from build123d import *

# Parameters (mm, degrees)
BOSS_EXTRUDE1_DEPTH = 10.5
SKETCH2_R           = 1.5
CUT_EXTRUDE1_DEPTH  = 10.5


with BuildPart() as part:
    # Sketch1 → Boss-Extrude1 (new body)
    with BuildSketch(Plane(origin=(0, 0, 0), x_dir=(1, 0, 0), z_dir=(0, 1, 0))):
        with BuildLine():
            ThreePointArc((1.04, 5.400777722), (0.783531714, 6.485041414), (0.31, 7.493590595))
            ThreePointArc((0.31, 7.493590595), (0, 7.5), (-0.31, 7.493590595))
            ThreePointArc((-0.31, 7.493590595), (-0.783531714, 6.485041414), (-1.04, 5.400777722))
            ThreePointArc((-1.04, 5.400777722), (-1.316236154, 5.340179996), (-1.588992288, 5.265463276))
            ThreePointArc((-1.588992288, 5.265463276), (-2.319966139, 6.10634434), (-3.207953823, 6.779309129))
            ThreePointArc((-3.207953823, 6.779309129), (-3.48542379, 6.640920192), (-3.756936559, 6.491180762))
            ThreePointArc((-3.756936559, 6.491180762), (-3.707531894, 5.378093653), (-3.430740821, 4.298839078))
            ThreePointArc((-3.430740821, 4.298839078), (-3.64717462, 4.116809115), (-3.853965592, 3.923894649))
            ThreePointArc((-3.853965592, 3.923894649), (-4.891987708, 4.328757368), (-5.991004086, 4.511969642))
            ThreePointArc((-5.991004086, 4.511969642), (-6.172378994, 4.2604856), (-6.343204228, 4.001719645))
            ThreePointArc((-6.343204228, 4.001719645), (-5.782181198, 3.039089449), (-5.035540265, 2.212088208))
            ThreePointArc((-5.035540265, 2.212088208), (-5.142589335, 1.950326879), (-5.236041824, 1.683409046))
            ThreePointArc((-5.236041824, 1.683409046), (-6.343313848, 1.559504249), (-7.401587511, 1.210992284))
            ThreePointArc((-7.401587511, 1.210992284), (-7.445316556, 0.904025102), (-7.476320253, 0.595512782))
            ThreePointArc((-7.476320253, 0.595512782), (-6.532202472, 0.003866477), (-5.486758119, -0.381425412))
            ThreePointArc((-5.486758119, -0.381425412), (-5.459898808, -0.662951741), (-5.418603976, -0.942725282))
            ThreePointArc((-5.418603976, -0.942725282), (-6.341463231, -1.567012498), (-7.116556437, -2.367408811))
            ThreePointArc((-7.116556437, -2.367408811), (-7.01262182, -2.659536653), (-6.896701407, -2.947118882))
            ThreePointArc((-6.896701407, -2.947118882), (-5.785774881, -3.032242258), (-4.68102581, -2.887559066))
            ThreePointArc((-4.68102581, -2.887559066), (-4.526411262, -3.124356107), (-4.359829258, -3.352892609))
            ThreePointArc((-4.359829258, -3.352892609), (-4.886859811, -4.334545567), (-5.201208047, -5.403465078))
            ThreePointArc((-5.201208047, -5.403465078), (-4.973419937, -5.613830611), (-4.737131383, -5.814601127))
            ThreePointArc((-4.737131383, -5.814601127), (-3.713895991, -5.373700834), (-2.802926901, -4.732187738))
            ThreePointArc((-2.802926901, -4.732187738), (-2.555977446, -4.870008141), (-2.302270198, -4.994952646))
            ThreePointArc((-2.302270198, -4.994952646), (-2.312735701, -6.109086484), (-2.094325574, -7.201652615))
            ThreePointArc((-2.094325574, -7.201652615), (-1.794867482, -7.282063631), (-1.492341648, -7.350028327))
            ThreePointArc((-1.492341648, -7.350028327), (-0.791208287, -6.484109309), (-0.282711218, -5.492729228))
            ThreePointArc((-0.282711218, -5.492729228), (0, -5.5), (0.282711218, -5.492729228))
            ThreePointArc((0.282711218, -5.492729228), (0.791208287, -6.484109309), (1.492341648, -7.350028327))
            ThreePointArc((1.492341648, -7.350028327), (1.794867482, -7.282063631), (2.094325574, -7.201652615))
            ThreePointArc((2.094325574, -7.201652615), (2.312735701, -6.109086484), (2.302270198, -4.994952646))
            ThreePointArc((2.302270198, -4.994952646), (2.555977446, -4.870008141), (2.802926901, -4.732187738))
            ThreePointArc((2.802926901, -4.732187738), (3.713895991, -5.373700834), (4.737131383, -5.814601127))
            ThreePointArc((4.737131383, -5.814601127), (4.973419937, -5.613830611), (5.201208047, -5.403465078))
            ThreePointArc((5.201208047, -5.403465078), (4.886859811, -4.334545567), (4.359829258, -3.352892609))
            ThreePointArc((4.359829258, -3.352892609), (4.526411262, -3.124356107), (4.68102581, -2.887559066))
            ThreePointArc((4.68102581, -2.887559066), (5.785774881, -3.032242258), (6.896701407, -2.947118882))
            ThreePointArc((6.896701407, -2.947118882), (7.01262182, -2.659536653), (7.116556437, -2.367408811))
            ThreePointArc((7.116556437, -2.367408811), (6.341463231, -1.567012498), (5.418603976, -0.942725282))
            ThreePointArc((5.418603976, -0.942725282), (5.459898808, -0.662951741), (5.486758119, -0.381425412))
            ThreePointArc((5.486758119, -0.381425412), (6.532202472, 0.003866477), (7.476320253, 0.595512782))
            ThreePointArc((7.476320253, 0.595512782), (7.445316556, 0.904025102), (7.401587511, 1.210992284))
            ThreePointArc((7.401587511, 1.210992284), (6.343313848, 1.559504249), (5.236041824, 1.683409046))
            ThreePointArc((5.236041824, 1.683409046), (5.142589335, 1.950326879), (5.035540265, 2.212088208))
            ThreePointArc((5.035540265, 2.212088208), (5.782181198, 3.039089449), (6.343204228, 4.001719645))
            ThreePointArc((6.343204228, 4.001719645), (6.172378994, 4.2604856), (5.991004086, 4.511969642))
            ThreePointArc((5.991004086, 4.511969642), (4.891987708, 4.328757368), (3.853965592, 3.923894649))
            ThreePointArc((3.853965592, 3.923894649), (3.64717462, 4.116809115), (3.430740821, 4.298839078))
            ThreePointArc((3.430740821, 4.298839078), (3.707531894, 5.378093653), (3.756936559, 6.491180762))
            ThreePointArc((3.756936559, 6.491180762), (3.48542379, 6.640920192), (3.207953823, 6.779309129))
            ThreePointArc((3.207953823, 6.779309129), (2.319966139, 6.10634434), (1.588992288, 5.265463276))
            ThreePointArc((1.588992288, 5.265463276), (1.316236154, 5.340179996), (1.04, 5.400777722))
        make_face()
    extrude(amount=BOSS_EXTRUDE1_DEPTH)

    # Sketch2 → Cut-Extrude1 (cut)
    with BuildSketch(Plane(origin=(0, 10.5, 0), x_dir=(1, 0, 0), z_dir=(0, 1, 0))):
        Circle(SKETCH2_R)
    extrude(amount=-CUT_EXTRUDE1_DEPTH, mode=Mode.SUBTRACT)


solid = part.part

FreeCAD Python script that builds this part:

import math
import FreeCAD as App
import Part
import Sketcher
Q = App.Units.Quantity

doc = App.newDocument("Part")
body = doc.addObject("PartDesign::Body", "Body")

sketch1 = doc.addObject("Sketcher::SketchObject", "Sketch")
body.addObject(sketch1)
sketch1.AttachmentSupport = (doc.XZ_Plane, [""])
sketch1.MapMode = "FlatFace"
sketch1.addGeometry(Part.ArcOfCircle(Part.Circle(App.Vector(-4.3, -4.7, 0), App.Vector(0, 0, 1), 5.4), math.radians(-31), math.radians(-7)), False)
sketch1.addGeometry(Part.ArcOfCircle(Part.Circle(App.Vector(0, 0, 0), App.Vector(0, 0, 1), 7.5), math.radians(-92.37), math.radians(-87.63)), False)
sketch1.addGeometry(Part.ArcOfCircle(Part.Circle(App.Vector(4.3, -4.7, 0), App.Vector(0, 0, 1), 5.4), math.radians(-173), math.radians(-149)), False)
sketch1.addGeometry(Part.ArcOfCircle(Part.Circle(App.Vector(0, 0, 0), App.Vector(0, 0, 1), 5.5), math.radians(-106.79), math.radians(-100.9)), False)
sketch1.addGeometry(Part.ArcOfCircle(Part.Circle(App.Vector(-6, -2.2, 0), App.Vector(0, 0, 1), 5.4), math.radians(-59), math.radians(-35)), False)
sketch1.addGeometry(Part.ArcOfCircle(Part.Circle(App.Vector(0, 0, 0), App.Vector(0, 0, 1), 7.5), math.radians(-120.06), math.radians(-115.32)), False)
sketch1.addGeometry(Part.ArcOfCircle(Part.Circle(App.Vector(1.6, -6.2, 0), App.Vector(0, 0, 1), 5.4), math.radians(160), math.radians(183)), False)
sketch1.addGeometry(Part.ArcOfCircle(Part.Circle(App.Vector(0, 0, 0), App.Vector(0, 0, 1), 5.5), math.radians(-134.48), math.radians(-128.59)), False)
sketch1.addGeometry(Part.ArcOfCircle(Part.Circle(App.Vector(-6.3, 0.9, 0), App.Vector(0, 0, 1), 5.4), math.radians(-86), math.radians(-63)), False)
sketch1.addGeometry(Part.ArcOfCircle(Part.Circle(App.Vector(0, 0, 0), App.Vector(0, 0, 1), 7.5), math.radians(-147.75), math.radians(-143.02)), False)
sketch1.addGeometry(Part.ArcOfCircle(Part.Circle(App.Vector(-1.4, -6.2, 0), App.Vector(0, 0, 1), 5.4), math.radians(132), math.radians(156)), False)
sketch1.addGeometry(Part.ArcOfCircle(Part.Circle(App.Vector(0, 0, 0), App.Vector(0, 0, 1), 5.5), math.radians(-162.18), math.radians(-156.28)), False)
sketch1.addGeometry(Part.ArcOfCircle(Part.Circle(App.Vector(-5.2, 3.7, 0), App.Vector(0, 0, 1), 5.4), math.radians(-114), math.radians(-90)), False)
sketch1.addGeometry(Part.ArcOfCircle(Part.Circle(App.Vector(0, 0, 0), App.Vector(0, 0, 1), 7.5), math.radians(-175.45), math.radians(-170.71)), False)
sketch1.addGeometry(Part.ArcOfCircle(Part.Circle(App.Vector(-4.2, -4.9, 0), App.Vector(0, 0, 1), 5.4), math.radians(104), math.radians(128)), False)
sketch1.addGeometry(Part.ArcOfCircle(Part.Circle(App.Vector(0, 0, 0), App.Vector(0, 0, 1), 5.5), math.radians(170.13), math.radians(176.02)), False)
sketch1.addGeometry(Part.ArcOfCircle(Part.Circle(App.Vector(-2.9, 5.7, 0), App.Vector(0, 0, 1), 5.4), math.radians(-142), math.radians(-118)), False)
sketch1.addGeometry(Part.ArcOfCircle(Part.Circle(App.Vector(0, 0, 0), App.Vector(0, 0, 1), 7.5), math.radians(156.86), math.radians(161.6)), False)
sketch1.addGeometry(Part.ArcOfCircle(Part.Circle(App.Vector(-5.9, -2.4, 0), App.Vector(0, 0, 1), 5.4), math.radians(77), math.radians(100)), False)
sketch1.addGeometry(Part.ArcOfCircle(Part.Circle(App.Vector(0, 0, 0), App.Vector(0, 0, 1), 5.5), math.radians(142.44), math.radians(148.33)), False)
sketch1.addGeometry(Part.ArcOfCircle(Part.Circle(App.Vector(0.1, 6.4, 0), App.Vector(0, 0, 1), 5.4), math.radians(-170), math.radians(-146)), False)
sketch1.addGeometry(Part.ArcOfCircle(Part.Circle(App.Vector(0, 0, 0), App.Vector(0, 0, 1), 7.5), math.radians(129.17), math.radians(133.91)), False)
sketch1.addGeometry(Part.ArcOfCircle(Part.Circle(App.Vector(-6.4, 0.7, 0), App.Vector(0, 0, 1), 5.4), math.radians(49), math.radians(73)), False)
sketch1.addGeometry(Part.ArcOfCircle(Part.Circle(App.Vector(0, 0, 0), App.Vector(0, 0, 1), 5.5), math.radians(114.75), math.radians(120.64)), False)
sketch1.addGeometry(Part.ArcOfCircle(Part.Circle(App.Vector(3.1, 5.6, 0), App.Vector(0, 0, 1), 5.4), math.radians(163), math.radians(186)), False)
sketch1.addGeometry(Part.ArcOfCircle(Part.Circle(App.Vector(0, 0, 0), App.Vector(0, 0, 1), 7.5), math.radians(101.48), math.radians(106.22)), False)
sketch1.addGeometry(Part.ArcOfCircle(Part.Circle(App.Vector(-5.3, 3.5, 0), App.Vector(0, 0, 1), 5.4), math.radians(21), math.radians(45)), False)
sketch1.addGeometry(Part.ArcOfCircle(Part.Circle(App.Vector(0, 0, 0), App.Vector(0, 0, 1), 5.5), math.radians(87.05), math.radians(92.95)), False)
sketch1.addGeometry(Part.ArcOfCircle(Part.Circle(App.Vector(5.3, 3.5, 0), App.Vector(0, 0, 1), 5.4), math.radians(135), math.radians(159)), False)
sketch1.addGeometry(Part.ArcOfCircle(Part.Circle(App.Vector(0, 0, 0), App.Vector(0, 0, 1), 7.5), math.radians(73.78), math.radians(78.52)), False)
sketch1.addGeometry(Part.ArcOfCircle(Part.Circle(App.Vector(-3.1, 5.6, 0), App.Vector(0, 0, 1), 5.4), math.radians(-6), math.radians(17)), False)
sketch1.addGeometry(Part.ArcOfCircle(Part.Circle(App.Vector(0, 0, 0), App.Vector(0, 0, 1), 5.5), math.radians(59.36), math.radians(65.25)), False)
sketch1.addGeometry(Part.ArcOfCircle(Part.Circle(App.Vector(6.4, 0.7, 0), App.Vector(0, 0, 1), 5.4), math.radians(107), math.radians(131)), False)
sketch1.addGeometry(Part.ArcOfCircle(Part.Circle(App.Vector(0, 0, 0), App.Vector(0, 0, 1), 7.5), math.radians(46.09), math.radians(50.83)), False)
sketch1.addGeometry(Part.ArcOfCircle(Part.Circle(App.Vector(-0.1, 6.4, 0), App.Vector(0, 0, 1), 5.4), math.radians(-34), math.radians(-10)), False)
sketch1.addGeometry(Part.ArcOfCircle(Part.Circle(App.Vector(0, 0, 0), App.Vector(0, 0, 1), 5.5), math.radians(31.67), math.radians(37.56)), False)
sketch1.addGeometry(Part.ArcOfCircle(Part.Circle(App.Vector(5.9, -2.4, 0), App.Vector(0, 0, 1), 5.4), math.radians(80), math.radians(103)), False)
sketch1.addGeometry(Part.ArcOfCircle(Part.Circle(App.Vector(0, 0, 0), App.Vector(0, 0, 1), 7.5), math.radians(18.4), math.radians(23.14)), False)
sketch1.addGeometry(Part.ArcOfCircle(Part.Circle(App.Vector(2.9, 5.7, 0), App.Vector(0, 0, 1), 5.4), math.radians(-62), math.radians(-38)), False)
sketch1.addGeometry(Part.ArcOfCircle(Part.Circle(App.Vector(0, 0, 0), App.Vector(0, 0, 1), 5.5), math.radians(3.98), math.radians(9.87)), False)
sketch1.addGeometry(Part.ArcOfCircle(Part.Circle(App.Vector(4.2, -4.9, 0), App.Vector(0, 0, 1), 5.4), math.radians(52), math.radians(76)), False)
sketch1.addGeometry(Part.ArcOfCircle(Part.Circle(App.Vector(0, 0, 0), App.Vector(0, 0, 1), 7.5), math.radians(-9.29), math.radians(-4.55)), False)
sketch1.addGeometry(Part.ArcOfCircle(Part.Circle(App.Vector(5.2, 3.7, 0), App.Vector(0, 0, 1), 5.4), math.radians(-90), math.radians(-66)), False)
sketch1.addGeometry(Part.ArcOfCircle(Part.Circle(App.Vector(0, 0, 0), App.Vector(0, 0, 1), 5.5), math.radians(-23.72), math.radians(-17.82)), False)
sketch1.addGeometry(Part.ArcOfCircle(Part.Circle(App.Vector(1.4, -6.2, 0), App.Vector(0, 0, 1), 5.4), math.radians(24), math.radians(48)), False)
sketch1.addGeometry(Part.ArcOfCircle(Part.Circle(App.Vector(0, 0, 0), App.Vector(0, 0, 1), 7.5), math.radians(-36.98), math.radians(-32.25)), False)
sketch1.addGeometry(Part.ArcOfCircle(Part.Circle(App.Vector(6.3, 0.9, 0), App.Vector(0, 0, 1), 5.4), math.radians(-117), math.radians(-94)), False)
sketch1.addGeometry(Part.ArcOfCircle(Part.Circle(App.Vector(0, 0, 0), App.Vector(0, 0, 1), 5.5), math.radians(-51.41), math.radians(-45.52)), False)
sketch1.addGeometry(Part.ArcOfCircle(Part.Circle(App.Vector(-1.6, -6.2, 0), App.Vector(0, 0, 1), 5.4), math.radians(-3), math.radians(20)), False)
sketch1.addGeometry(Part.ArcOfCircle(Part.Circle(App.Vector(0, 0, 0), App.Vector(0, 0, 1), 7.5), math.radians(-64.68), math.radians(-59.94)), False)
sketch1.addGeometry(Part.ArcOfCircle(Part.Circle(App.Vector(6, -2.2, 0), App.Vector(0, 0, 1), 5.4), math.radians(-145), math.radians(-121)), False)
sketch1.addGeometry(Part.ArcOfCircle(Part.Circle(App.Vector(0, 0, 0), App.Vector(0, 0, 1), 5.5), math.radians(-79.1), math.radians(-73.21)), False)
sketch1.addConstraint(Sketcher.Constraint("Coincident", 0, 1, 1, 2))
sketch1.addConstraint(Sketcher.Constraint("Coincident", 1, 1, 2, 2))
sketch1.addConstraint(Sketcher.Constraint("Coincident", 2, 1, 3, 2))
sketch1.addConstraint(Sketcher.Constraint("Coincident", 3, 1, 4, 2))
sketch1.addConstraint(Sketcher.Constraint("Coincident", 4, 1, 5, 2))
sketch1.addConstraint(Sketcher.Constraint("Coincident", 5, 1, 6, 2))
sketch1.addConstraint(Sketcher.Constraint("Coincident", 6, 1, 7, 2))
sketch1.addConstraint(Sketcher.Constraint("Coincident", 7, 1, 8, 2))
sketch1.addConstraint(Sketcher.Constraint("Coincident", 8, 1, 9, 2))
sketch1.addConstraint(Sketcher.Constraint("Coincident", 9, 1, 10, 2))
sketch1.addConstraint(Sketcher.Constraint("Coincident", 10, 1, 11, 2))
sketch1.addConstraint(Sketcher.Constraint("Coincident", 11, 1, 12, 2))
sketch1.addConstraint(Sketcher.Constraint("Coincident", 12, 1, 13, 2))
sketch1.addConstraint(Sketcher.Constraint("Coincident", 13, 1, 14, 2))
sketch1.addConstraint(Sketcher.Constraint("Coincident", 14, 1, 15, 2))
sketch1.addConstraint(Sketcher.Constraint("Coincident", 15, 1, 16, 2))
sketch1.addConstraint(Sketcher.Constraint("Coincident", 16, 1, 17, 2))
sketch1.addConstraint(Sketcher.Constraint("Coincident", 17, 1, 18, 2))
sketch1.addConstraint(Sketcher.Constraint("Coincident", 18, 1, 19, 2))
sketch1.addConstraint(Sketcher.Constraint("Coincident", 19, 1, 20, 2))
sketch1.addConstraint(Sketcher.Constraint("Coincident", 20, 1, 21, 2))
sketch1.addConstraint(Sketcher.Constraint("Coincident", 21, 1, 22, 2))
sketch1.addConstraint(Sketcher.Constraint("Coincident", 22, 1, 23, 2))
sketch1.addConstraint(Sketcher.Constraint("Coincident", 23, 1, 24, 2))
sketch1.addConstraint(Sketcher.Constraint("Coincident", 24, 1, 25, 2))
sketch1.addConstraint(Sketcher.Constraint("Coincident", 25, 1, 26, 2))
sketch1.addConstraint(Sketcher.Constraint("Coincident", 26, 1, 27, 2))
sketch1.addConstraint(Sketcher.Constraint("Coincident", 27, 1, 28, 2))
sketch1.addConstraint(Sketcher.Constraint("Coincident", 28, 1, 29, 2))
sketch1.addConstraint(Sketcher.Constraint("Coincident", 29, 1, 30, 2))
sketch1.addConstraint(Sketcher.Constraint("Coincident", 30, 1, 31, 2))
sketch1.addConstraint(Sketcher.Constraint("Coincident", 31, 1, 32, 2))
sketch1.addConstraint(Sketcher.Constraint("Coincident", 32, 1, 33, 2))
sketch1.addConstraint(Sketcher.Constraint("Coincident", 33, 1, 34, 2))
sketch1.addConstraint(Sketcher.Constraint("Coincident", 34, 1, 35, 2))
sketch1.addConstraint(Sketcher.Constraint("Coincident", 35, 1, 36, 2))
sketch1.addConstraint(Sketcher.Constraint("Coincident", 36, 1, 37, 2))
sketch1.addConstraint(Sketcher.Constraint("Coincident", 37, 1, 38, 2))
sketch1.addConstraint(Sketcher.Constraint("Coincident", 38, 1, 39, 2))
sketch1.addConstraint(Sketcher.Constraint("Coincident", 39, 1, 40, 2))
sketch1.addConstraint(Sketcher.Constraint("Coincident", 40, 1, 41, 2))
sketch1.addConstraint(Sketcher.Constraint("Coincident", 41, 1, 42, 2))
sketch1.addConstraint(Sketcher.Constraint("Coincident", 42, 1, 43, 2))
sketch1.addConstraint(Sketcher.Constraint("Coincident", 43, 1, 44, 2))
sketch1.addConstraint(Sketcher.Constraint("Coincident", 44, 1, 45, 2))
sketch1.addConstraint(Sketcher.Constraint("Coincident", 45, 1, 46, 2))
sketch1.addConstraint(Sketcher.Constraint("Coincident", 46, 1, 47, 2))
sketch1.addConstraint(Sketcher.Constraint("Coincident", 47, 1, 48, 2))
sketch1.addConstraint(Sketcher.Constraint("Coincident", 48, 1, 49, 2))
sketch1.addConstraint(Sketcher.Constraint("Coincident", 49, 1, 50, 2))
sketch1.addConstraint(Sketcher.Constraint("Coincident", 50, 1, 51, 2))
sketch1.addConstraint(Sketcher.Constraint("Coincident", 51, 1, 0, 2))
sketch1.addConstraint(Sketcher.Constraint("Coincident", 1, 3, -1, 1))
sketch1.addConstraint(Sketcher.Constraint("Coincident", 3, 3, -1, 1))
sketch1.addConstraint(Sketcher.Constraint("Coincident", 5, 3, -1, 1))
sketch1.addConstraint(Sketcher.Constraint("Coincident", 7, 3, -1, 1))
sketch1.addConstraint(Sketcher.Constraint("Coincident", 9, 3, -1, 1))
sketch1.addConstraint(Sketcher.Constraint("Coincident", 11, 3, -1, 1))
sketch1.addConstraint(Sketcher.Constraint("Coincident", 13, 3, -1, 1))
sketch1.addConstraint(Sketcher.Constraint("Coincident", 15, 3, -1, 1))
sketch1.addConstraint(Sketcher.Constraint("Coincident", 17, 3, -1, 1))
sketch1.addConstraint(Sketcher.Constraint("Coincident", 19, 3, -1, 1))
sketch1.addConstraint(Sketcher.Constraint("Coincident", 21, 3, -1, 1))
sketch1.addConstraint(Sketcher.Constraint("Coincident", 23, 3, -1, 1))
sketch1.addConstraint(Sketcher.Constraint("Coincident", 25, 3, -1, 1))
sketch1.addConstraint(Sketcher.Constraint("Coincident", 27, 3, -1, 1))
sketch1.addConstraint(Sketcher.Constraint("Coincident", 29, 3, -1, 1))
sketch1.addConstraint(Sketcher.Constraint("Coincident", 31, 3, -1, 1))
sketch1.addConstraint(Sketcher.Constraint("Coincident", 33, 3, -1, 1))
sketch1.addConstraint(Sketcher.Constraint("Coincident", 35, 3, -1, 1))
sketch1.addConstraint(Sketcher.Constraint("Coincident", 37, 3, -1, 1))
sketch1.addConstraint(Sketcher.Constraint("Coincident", 39, 3, -1, 1))
sketch1.addConstraint(Sketcher.Constraint("Coincident", 41, 3, -1, 1))
sketch1.addConstraint(Sketcher.Constraint("Coincident", 43, 3, -1, 1))
sketch1.addConstraint(Sketcher.Constraint("Coincident", 45, 3, -1, 1))
sketch1.addConstraint(Sketcher.Constraint("Coincident", 47, 3, -1, 1))
sketch1.addConstraint(Sketcher.Constraint("Coincident", 49, 3, -1, 1))
sketch1.addConstraint(Sketcher.Constraint("Coincident", 51, 3, -1, 1))
sketch1.addConstraint(Sketcher.Constraint("Equal", 0, 2))
sketch1.addConstraint(Sketcher.Constraint("Equal", 2, 4))
sketch1.addConstraint(Sketcher.Constraint("Equal", 1, 5))
sketch1.addConstraint(Sketcher.Constraint("Equal", 4, 6))
sketch1.addConstraint(Sketcher.Constraint("Equal", 3, 7))
sketch1.addConstraint(Sketcher.Constraint("Equal", 6, 8))
sketch1.addConstraint(Sketcher.Constraint("Equal", 5, 9))
sketch1.addConstraint(Sketcher.Constraint("Equal", 8, 10))
sketch1.addConstraint(Sketcher.Constraint("Equal", 7, 11))
sketch1.addConstraint(Sketcher.Constraint("Equal", 10, 12))
sketch1.addConstraint(Sketcher.Constraint("Equal", 9, 13))
sketch1.addConstraint(Sketcher.Constraint("Equal", 12, 14))
sketch1.addConstraint(Sketcher.Constraint("Equal", 11, 15))
sketch1.addConstraint(Sketcher.Constraint("Equal", 14, 16))
sketch1.addConstraint(Sketcher.Constraint("Equal", 13, 17))
sketch1.addConstraint(Sketcher.Constraint("Equal", 16, 18))
sketch1.addConstraint(Sketcher.Constraint("Equal", 15, 19))
sketch1.addConstraint(Sketcher.Constraint("Equal", 18, 20))
sketch1.addConstraint(Sketcher.Constraint("Equal", 17, 21))
sketch1.addConstraint(Sketcher.Constraint("Equal", 20, 22))
sketch1.addConstraint(Sketcher.Constraint("Equal", 19, 23))
sketch1.addConstraint(Sketcher.Constraint("Equal", 22, 24))
sketch1.addConstraint(Sketcher.Constraint("Equal", 21, 25))
sketch1.addConstraint(Sketcher.Constraint("Equal", 24, 26))
sketch1.addConstraint(Sketcher.Constraint("Equal", 23, 27))
sketch1.addConstraint(Sketcher.Constraint("Equal", 26, 28))
sketch1.addConstraint(Sketcher.Constraint("Equal", 25, 29))
sketch1.addConstraint(Sketcher.Constraint("Equal", 28, 30))
sketch1.addConstraint(Sketcher.Constraint("Equal", 27, 31))
sketch1.addConstraint(Sketcher.Constraint("Equal", 30, 32))
sketch1.addConstraint(Sketcher.Constraint("Equal", 29, 33))
sketch1.addConstraint(Sketcher.Constraint("Equal", 32, 34))
sketch1.addConstraint(Sketcher.Constraint("Equal", 31, 35))
sketch1.addConstraint(Sketcher.Constraint("Equal", 34, 36))
sketch1.addConstraint(Sketcher.Constraint("Equal", 33, 37))
sketch1.addConstraint(Sketcher.Constraint("Equal", 36, 38))
sketch1.addConstraint(Sketcher.Constraint("Equal", 35, 39))
sketch1.addConstraint(Sketcher.Constraint("Equal", 38, 40))
sketch1.addConstraint(Sketcher.Constraint("Equal", 37, 41))
sketch1.addConstraint(Sketcher.Constraint("Equal", 40, 42))
sketch1.addConstraint(Sketcher.Constraint("Equal", 39, 43))
sketch1.addConstraint(Sketcher.Constraint("Equal", 42, 44))
sketch1.addConstraint(Sketcher.Constraint("Equal", 41, 45))
sketch1.addConstraint(Sketcher.Constraint("Equal", 44, 46))
sketch1.addConstraint(Sketcher.Constraint("Equal", 43, 47))
sketch1.addConstraint(Sketcher.Constraint("Equal", 46, 48))
sketch1.addConstraint(Sketcher.Constraint("Equal", 45, 49))
sketch1.addConstraint(Sketcher.Constraint("Equal", 48, 50))
sketch1.addConstraint(Sketcher.Constraint("Equal", 47, 51))
sketch1.addConstraint(Sketcher.Constraint("Symmetric", 0, 3, 2, 3, -2))
sketch1.addConstraint(Sketcher.Constraint("Symmetric", 26, 3, 28, 3, -2))
sketch1.addConstraint(Sketcher.Constraint("Symmetric", 24, 3, 30, 3, -2))
sketch1.addConstraint(Sketcher.Constraint("Symmetric", 22, 3, 32, 3, -2))
sketch1.addConstraint(Sketcher.Constraint("Symmetric", 20, 3, 34, 3, -2))
sketch1.addConstraint(Sketcher.Constraint("Symmetric", 18, 3, 36, 3, -2))
sketch1.addConstraint(Sketcher.Constraint("Symmetric", 16, 3, 38, 3, -2))
sketch1.addConstraint(Sketcher.Constraint("Symmetric", 14, 3, 40, 3, -2))
sketch1.addConstraint(Sketcher.Constraint("Symmetric", 12, 3, 42, 3, -2))
sketch1.addConstraint(Sketcher.Constraint("Symmetric", 10, 3, 44, 3, -2))
sketch1.addConstraint(Sketcher.Constraint("Symmetric", 8, 3, 46, 3, -2))
sketch1.addConstraint(Sketcher.Constraint("Symmetric", 6, 3, 48, 3, -2))
sketch1.addConstraint(Sketcher.Constraint("Symmetric", 4, 3, 50, 3, -2))
sketch1.addConstraint(Sketcher.Constraint("Radius", 0, Q("5.4 mm")))
sketch1.addConstraint(Sketcher.Constraint("Radius", 1, Q("7.5 mm")))
sketch1.addConstraint(Sketcher.Constraint("Radius", 3, Q("5.5 mm")))
sketch1.addConstraint(Sketcher.Constraint("DistanceX", -1, 1, 0, 1, Q("0.31 mm")))
sketch1.addConstraint(Sketcher.Constraint("DistanceX", 2, 1, -1, 1, Q("1.04 mm")))
sketch1.addConstraint(Sketcher.Constraint("DistanceY", -1, 1, 22, 3, Q("0.661399 mm")))
sketch1.addConstraint(Sketcher.Constraint("DistanceX", 17, 1, -1, 1, Q("6.896701 mm")))
sketch1.addConstraint(Sketcher.Constraint("DistanceY", -1, 1, 21, 1, Q("5.814601 mm")))
sketch1.addConstraint(Sketcher.Constraint("DistanceX", 4, 3, -1, 1, Q("6.008149 mm")))
sketch1.addConstraint(Sketcher.Constraint("DistanceY", 4, 3, -1, 1, Q("2.162069 mm")))
sketch1.addConstraint(Sketcher.Constraint("DistanceX", -1, 1, 6, 3, Q("1.63367 mm")))
sketch1.addConstraint(Sketcher.Constraint("DistanceY", -1, 1, 8, 3, Q("0.877709 mm")))
sketch1.addConstraint(Sketcher.Constraint("DistanceY", 10, 3, -1, 1, Q("6.224951 mm")))
sketch1.addConstraint(Sketcher.Constraint("DistanceX", 14, 3, -1, 1, Q("4.152088 mm")))
sketch1.addConstraint(Sketcher.Constraint("DistanceX", 18, 3, -1, 1, Q("5.93088 mm")))
sketch1.addConstraint(Sketcher.Constraint("DistanceX", -1, 1, 20, 3, Q("0.10895 mm")))
sketch1.addConstraint(Sketcher.Constraint("DistanceY", -1, 1, 24, 3, Q("5.602471 mm")))
sketch1.addConstraint(Sketcher.Constraint("DistanceY", 5, 1, -1, 1, Q("6.491181 mm")))
sketch1.addConstraint(Sketcher.Constraint("DistanceY", 8, 1, -1, 1, Q("4.51197 mm")))
sketch1.addConstraint(Sketcher.Constraint("DistanceY", 9, 1, -1, 1, Q("4.00172 mm")))
sketch1.addConstraint(Sketcher.Constraint("DistanceX", 11, 1, -1, 1, Q("5.236042 mm")))
sketch1.addConstraint(Sketcher.Constraint("DistanceX", 13, 1, -1, 1, Q("7.47632 mm")))
sketch1.addConstraint(Sketcher.Constraint("DistanceY", -1, 1, 16, 1, Q("2.367409 mm")))
sketch1.addConstraint(Sketcher.Constraint("DistanceX", 19, 1, -1, 1, Q("4.359829 mm")))
sketch1.addConstraint(Sketcher.Constraint("DistanceX", 23, 1, -1, 1, Q("2.30227 mm")))
sketch1.addConstraint(Sketcher.Constraint("DistanceX", 25, 1, -1, 1, Q("1.492342 mm")))
sketch1.addConstraint(Sketcher.Constraint("DistanceX", 26, 1, -1, 1, Q("0.282711 mm")))
sketch1.addConstraint(Sketcher.Constraint("DistanceX", 12, 3, -1, 1, Q("5.192365 mm")))
sketch1.addConstraint(Sketcher.Constraint("DistanceX", 16, 3, -1, 1, Q("2.870507 mm")))
pad1 = doc.addObject("PartDesign::Pad", "Pad")
body.addObject(pad1)
pad1.Profile = sketch1
pad1.Length = 10.5
pad1.Reversed = True

sketch2 = doc.addObject("Sketcher::SketchObject", "Sketch001")
body.addObject(sketch2)
sketch2.AttachmentSupport = (doc.XZ_Plane, [""])
sketch2.MapMode = "FlatFace"
sketch2.AttachmentOffset = App.Placement(App.Vector(0, 0, -10.5), App.Rotation())
sketch2.addGeometry(Part.Circle(App.Vector(0, 0, 0), App.Vector(0, 0, 1), 1.5), False)
sketch2.addConstraint(Sketcher.Constraint("Coincident", 0, 3, -1, 1))
sketch2.addConstraint(Sketcher.Constraint("Diameter", 0, Q("3 mm")))
pocket1 = doc.addObject("PartDesign::Pocket", "Pocket")
body.addObject(pocket1)
pocket1.Profile = sketch2
pocket1.Length = 10.5
pocket1.Reversed = True

doc.recompute()
